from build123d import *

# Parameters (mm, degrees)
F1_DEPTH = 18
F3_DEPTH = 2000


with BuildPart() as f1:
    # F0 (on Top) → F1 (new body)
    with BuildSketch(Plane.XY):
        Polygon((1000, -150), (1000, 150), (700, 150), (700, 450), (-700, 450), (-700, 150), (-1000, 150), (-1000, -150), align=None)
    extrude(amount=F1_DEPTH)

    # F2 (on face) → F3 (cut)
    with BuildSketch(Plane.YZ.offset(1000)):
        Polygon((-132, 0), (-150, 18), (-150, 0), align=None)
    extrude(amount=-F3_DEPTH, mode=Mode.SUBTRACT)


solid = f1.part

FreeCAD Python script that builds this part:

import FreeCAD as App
import Part
import Sketcher
from FreeCAD import Vector

doc = App.newDocument("Part")
body = doc.addObject("PartDesign::Body", "Body")

sketch1 = body.newObject("Sketcher::SketchObject", "Sketch")
sketch1.AttachmentSupport = (doc.getObject("XY_Plane"), [""])
sketch1.MapMode = "FlatFace"
sketch1.addGeometry([
    Part.LineSegment(Vector(1000, -150, 0), Vector(1000, 150, 0)),
    Part.LineSegment(Vector(1000, 150, 0), Vector(700, 150, 0)),
    Part.LineSegment(Vector(700, 150, 0), Vector(700, 450, 0)),
    Part.LineSegment(Vector(700, 450, 0), Vector(-700, 450, 0)),
    Part.LineSegment(Vector(-700, 450, 0), Vector(-700, 150, 0)),
    Part.LineSegment(Vector(-700, 150, 0), Vector(-1000, 150, 0)),
    Part.LineSegment(Vector(-1000, 150, 0), Vector(-1000, -150, 0)),
    Part.LineSegment(Vector(-1000, -150, 0), Vector(1000, -150, 0)),
], False)
sketch1.addConstraint([
    Sketcher.Constraint("Coincident", 0, 2, 1, 1),
    Sketcher.Constraint("Coincident", 1, 2, 2, 1),
    Sketcher.Constraint("Coincident", 2, 2, 3, 1),
    Sketcher.Constraint("Coincident", 3, 2, 4, 1),
    Sketcher.Constraint("Coincident", 4, 2, 5, 1),
    Sketcher.Constraint("Coincident", 5, 2, 6, 1),
    Sketcher.Constraint("Coincident", 6, 2, 7, 1),
    Sketcher.Constraint("Coincident", 7, 2, 0, 1),
    Sketcher.Constraint("Vertical", 0),
    Sketcher.Constraint("Horizontal", 1),
    Sketcher.Constraint("Vertical", 2),
    Sketcher.Constraint("Horizontal", 3),
    Sketcher.Constraint("Vertical", 4),
    Sketcher.Constraint("Horizontal", 5),
    Sketcher.Constraint("Vertical", 6),
    Sketcher.Constraint("Horizontal", 7),
    Sketcher.Constraint("Symmetric", 0, 2, 6, 2, -1, 1),
    Sketcher.Constraint("Symmetric", 1, 2, 4, 2, -2),
    Sketcher.Constraint("Equal", 5, 0),
    Sketcher.Constraint("Equal", 0, 2),
    Sketcher.Constraint("DistanceX", 1, 2, 1, 1, 300.0),
    Sketcher.Constraint("DistanceX", 3, 2, 3, 1, 1400.0),
])
pad1 = body.newObject("PartDesign::Pad", "Pad")
pad1.Profile = sketch1
pad1.Length = 18

sketch2 = body.newObject("Sketcher::SketchObject", "Sketch001")
sketch2.AttachmentSupport = (doc.getObject("YZ_Plane"), [""])
sketch2.MapMode = "FlatFace"
sketch2.AttachmentOffset = App.Placement(Vector(0, 0, 1000), App.Rotation())
sketch2.addGeometry([
    Part.LineSegment(Vector(-132, 0, 0), Vector(-150, 18, 0)),
    Part.LineSegment(Vector(-150, 18, 0), Vector(-150, 0, 0)),
    Part.LineSegment(Vector(-150, 0, 0), Vector(-132, 0, 0)),
], False)
sketch2.addConstraint([
    Sketcher.Constraint("Coincident", 0, 2, 1, 1),
    Sketcher.Constraint("Coincident", 1, 2, 2, 1),
    Sketcher.Constraint("Coincident", 2, 2, 0, 1),
    Sketcher.Constraint("Vertical", 1),
    Sketcher.Constraint("Horizontal", 2),
    Sketcher.Constraint("PointOnObject", 1, 2, -1),
    Sketcher.Constraint("Equal", 2, 1),
    Sketcher.Constraint("DistanceX", 2, 1, 2, 2, 18.0),
    Sketcher.Constraint("DistanceX", 0, 2, -1, 1, 150.0),
])
pocket1 = body.newObject("PartDesign::Pocket", "Pocket")
pocket1.Profile = sketch2
pocket1.Length = 2000

doc.recompute()
